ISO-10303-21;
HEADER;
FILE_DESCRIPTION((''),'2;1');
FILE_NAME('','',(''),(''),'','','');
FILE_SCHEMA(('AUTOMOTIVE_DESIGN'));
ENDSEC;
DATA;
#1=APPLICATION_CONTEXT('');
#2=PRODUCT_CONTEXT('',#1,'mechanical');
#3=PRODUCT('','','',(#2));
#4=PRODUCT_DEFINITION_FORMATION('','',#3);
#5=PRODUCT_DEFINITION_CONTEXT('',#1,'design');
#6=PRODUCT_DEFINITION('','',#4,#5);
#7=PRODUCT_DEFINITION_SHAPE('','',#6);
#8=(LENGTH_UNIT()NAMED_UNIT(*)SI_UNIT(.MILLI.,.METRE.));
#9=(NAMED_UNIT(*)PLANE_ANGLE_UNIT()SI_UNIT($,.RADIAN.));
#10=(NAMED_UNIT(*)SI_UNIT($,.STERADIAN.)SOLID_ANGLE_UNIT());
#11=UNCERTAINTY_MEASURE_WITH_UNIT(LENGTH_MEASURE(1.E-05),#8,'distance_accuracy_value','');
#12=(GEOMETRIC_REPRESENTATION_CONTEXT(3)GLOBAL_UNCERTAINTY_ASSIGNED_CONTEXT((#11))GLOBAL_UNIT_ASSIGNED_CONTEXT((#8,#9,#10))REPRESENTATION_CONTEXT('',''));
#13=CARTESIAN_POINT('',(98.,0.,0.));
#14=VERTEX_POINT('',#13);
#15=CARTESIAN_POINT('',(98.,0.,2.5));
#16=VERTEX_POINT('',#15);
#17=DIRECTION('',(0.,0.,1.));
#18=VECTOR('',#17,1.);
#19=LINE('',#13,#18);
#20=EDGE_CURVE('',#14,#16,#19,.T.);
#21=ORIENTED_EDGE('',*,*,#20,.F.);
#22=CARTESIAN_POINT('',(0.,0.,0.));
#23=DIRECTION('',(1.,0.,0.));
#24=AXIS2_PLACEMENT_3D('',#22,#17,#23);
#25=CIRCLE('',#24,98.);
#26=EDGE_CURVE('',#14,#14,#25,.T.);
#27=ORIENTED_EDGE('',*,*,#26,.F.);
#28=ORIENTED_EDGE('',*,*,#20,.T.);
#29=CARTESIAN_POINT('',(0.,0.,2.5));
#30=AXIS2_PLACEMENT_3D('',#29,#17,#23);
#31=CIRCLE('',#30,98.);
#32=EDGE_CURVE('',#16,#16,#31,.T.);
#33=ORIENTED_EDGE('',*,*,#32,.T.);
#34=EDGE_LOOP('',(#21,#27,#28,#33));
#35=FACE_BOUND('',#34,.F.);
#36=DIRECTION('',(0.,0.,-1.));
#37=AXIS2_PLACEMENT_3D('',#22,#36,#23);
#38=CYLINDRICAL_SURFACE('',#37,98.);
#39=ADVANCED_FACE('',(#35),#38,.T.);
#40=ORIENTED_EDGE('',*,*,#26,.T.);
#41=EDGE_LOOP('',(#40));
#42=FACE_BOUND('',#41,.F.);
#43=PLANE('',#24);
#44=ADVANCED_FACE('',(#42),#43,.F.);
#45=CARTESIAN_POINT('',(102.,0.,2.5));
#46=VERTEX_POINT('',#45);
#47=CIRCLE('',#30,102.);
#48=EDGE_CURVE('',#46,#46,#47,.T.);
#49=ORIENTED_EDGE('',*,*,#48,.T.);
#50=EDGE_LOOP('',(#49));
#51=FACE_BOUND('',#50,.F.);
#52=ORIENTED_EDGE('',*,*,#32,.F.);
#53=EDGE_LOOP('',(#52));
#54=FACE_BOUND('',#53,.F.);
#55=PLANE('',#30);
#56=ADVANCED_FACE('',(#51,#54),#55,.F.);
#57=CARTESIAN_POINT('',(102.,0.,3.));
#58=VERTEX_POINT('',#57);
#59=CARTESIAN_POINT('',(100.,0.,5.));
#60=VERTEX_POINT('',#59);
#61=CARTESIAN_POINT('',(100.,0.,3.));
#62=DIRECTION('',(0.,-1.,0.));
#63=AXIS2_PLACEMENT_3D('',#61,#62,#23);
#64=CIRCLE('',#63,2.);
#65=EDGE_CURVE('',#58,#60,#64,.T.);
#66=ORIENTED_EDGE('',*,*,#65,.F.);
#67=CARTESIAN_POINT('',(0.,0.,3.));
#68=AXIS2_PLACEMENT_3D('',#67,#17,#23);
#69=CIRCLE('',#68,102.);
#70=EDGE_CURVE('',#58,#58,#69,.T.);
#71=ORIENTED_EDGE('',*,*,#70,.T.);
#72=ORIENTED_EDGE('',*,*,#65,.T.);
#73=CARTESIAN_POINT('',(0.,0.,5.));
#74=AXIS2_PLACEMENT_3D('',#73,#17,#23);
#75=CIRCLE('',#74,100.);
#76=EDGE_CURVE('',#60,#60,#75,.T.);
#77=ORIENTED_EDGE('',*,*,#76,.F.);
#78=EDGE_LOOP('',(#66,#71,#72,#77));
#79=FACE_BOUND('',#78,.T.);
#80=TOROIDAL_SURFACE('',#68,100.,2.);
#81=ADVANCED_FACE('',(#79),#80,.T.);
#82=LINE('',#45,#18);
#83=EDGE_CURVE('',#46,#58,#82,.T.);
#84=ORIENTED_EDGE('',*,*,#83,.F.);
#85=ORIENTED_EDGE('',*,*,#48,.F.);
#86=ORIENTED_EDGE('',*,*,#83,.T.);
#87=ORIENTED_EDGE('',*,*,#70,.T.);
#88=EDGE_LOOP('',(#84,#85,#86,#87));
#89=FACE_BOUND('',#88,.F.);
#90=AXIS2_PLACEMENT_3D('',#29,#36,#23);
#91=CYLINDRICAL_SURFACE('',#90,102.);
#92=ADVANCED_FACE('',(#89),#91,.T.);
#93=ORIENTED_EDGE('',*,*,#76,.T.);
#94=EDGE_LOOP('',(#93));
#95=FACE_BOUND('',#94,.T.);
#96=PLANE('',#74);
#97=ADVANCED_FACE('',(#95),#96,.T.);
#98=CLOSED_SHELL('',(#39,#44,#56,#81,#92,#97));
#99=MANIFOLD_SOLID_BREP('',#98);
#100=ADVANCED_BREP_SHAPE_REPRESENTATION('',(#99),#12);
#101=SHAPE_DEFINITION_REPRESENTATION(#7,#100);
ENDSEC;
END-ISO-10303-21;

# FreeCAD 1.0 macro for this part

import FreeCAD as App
import Part
import Sketcher
from FreeCAD import Vector


def edges_at(feature, points):
    """Names of the edges that pass closest to the given points."""
    edges = feature.Shape.Edges
    near = lambda p: min(range(len(edges)), key=lambda i: edges[i].distToShape(Part.Vertex(*p))[0])
    return sorted({f"Edge{near(p) + 1}" for p in points})

doc = App.newDocument("Part")
body = doc.addObject("PartDesign::Body", "Body")

sketch1 = body.newObject("Sketcher::SketchObject", "Sketch")
sketch1.AttachmentSupport = (doc.getObject("XY_Plane"), [""])
sketch1.MapMode = "FlatFace"
sketch1.addGeometry(Part.Circle(Vector(0, 0, 0), Vector(0, 0, 1), 98), False)
sketch1.addConstraint([
    Sketcher.Constraint("Coincident", 0, 3, -1, 1),
    Sketcher.Constraint("Diameter", 0, 196.0),
])
pad1 = body.newObject("PartDesign::Pad", "Pad")
pad1.Profile = sketch1
pad1.Length = 2.5

sketch2 = body.newObject("Sketcher::SketchObject", "Sketch001")
sketch2.AttachmentSupport = (doc.getObject("XY_Plane"), [""])
sketch2.MapMode = "FlatFace"
sketch2.AttachmentOffset = App.Placement(Vector(0, 0, 2.5), App.Rotation())
sketch2.addGeometry(Part.Circle(Vector(0, 0, 0), Vector(0, 0, 1), 102), False)
sketch2.addConstraint([
    Sketcher.Constraint("Coincident", 0, 3, -1, 1),
    Sketcher.Constraint("Diameter", 0, 204.0),
])
pad2 = body.newObject("PartDesign::Pad", "Pad001")
pad2.Profile = sketch2
pad2.Length = 2.5
doc.recompute()

fillet = body.newObject("PartDesign::Fillet", "Fillet")
fillet.Base = (pad2, edges_at(pad2, [(-102, 0, 5)]))
fillet.Radius = 2

doc.recompute()
